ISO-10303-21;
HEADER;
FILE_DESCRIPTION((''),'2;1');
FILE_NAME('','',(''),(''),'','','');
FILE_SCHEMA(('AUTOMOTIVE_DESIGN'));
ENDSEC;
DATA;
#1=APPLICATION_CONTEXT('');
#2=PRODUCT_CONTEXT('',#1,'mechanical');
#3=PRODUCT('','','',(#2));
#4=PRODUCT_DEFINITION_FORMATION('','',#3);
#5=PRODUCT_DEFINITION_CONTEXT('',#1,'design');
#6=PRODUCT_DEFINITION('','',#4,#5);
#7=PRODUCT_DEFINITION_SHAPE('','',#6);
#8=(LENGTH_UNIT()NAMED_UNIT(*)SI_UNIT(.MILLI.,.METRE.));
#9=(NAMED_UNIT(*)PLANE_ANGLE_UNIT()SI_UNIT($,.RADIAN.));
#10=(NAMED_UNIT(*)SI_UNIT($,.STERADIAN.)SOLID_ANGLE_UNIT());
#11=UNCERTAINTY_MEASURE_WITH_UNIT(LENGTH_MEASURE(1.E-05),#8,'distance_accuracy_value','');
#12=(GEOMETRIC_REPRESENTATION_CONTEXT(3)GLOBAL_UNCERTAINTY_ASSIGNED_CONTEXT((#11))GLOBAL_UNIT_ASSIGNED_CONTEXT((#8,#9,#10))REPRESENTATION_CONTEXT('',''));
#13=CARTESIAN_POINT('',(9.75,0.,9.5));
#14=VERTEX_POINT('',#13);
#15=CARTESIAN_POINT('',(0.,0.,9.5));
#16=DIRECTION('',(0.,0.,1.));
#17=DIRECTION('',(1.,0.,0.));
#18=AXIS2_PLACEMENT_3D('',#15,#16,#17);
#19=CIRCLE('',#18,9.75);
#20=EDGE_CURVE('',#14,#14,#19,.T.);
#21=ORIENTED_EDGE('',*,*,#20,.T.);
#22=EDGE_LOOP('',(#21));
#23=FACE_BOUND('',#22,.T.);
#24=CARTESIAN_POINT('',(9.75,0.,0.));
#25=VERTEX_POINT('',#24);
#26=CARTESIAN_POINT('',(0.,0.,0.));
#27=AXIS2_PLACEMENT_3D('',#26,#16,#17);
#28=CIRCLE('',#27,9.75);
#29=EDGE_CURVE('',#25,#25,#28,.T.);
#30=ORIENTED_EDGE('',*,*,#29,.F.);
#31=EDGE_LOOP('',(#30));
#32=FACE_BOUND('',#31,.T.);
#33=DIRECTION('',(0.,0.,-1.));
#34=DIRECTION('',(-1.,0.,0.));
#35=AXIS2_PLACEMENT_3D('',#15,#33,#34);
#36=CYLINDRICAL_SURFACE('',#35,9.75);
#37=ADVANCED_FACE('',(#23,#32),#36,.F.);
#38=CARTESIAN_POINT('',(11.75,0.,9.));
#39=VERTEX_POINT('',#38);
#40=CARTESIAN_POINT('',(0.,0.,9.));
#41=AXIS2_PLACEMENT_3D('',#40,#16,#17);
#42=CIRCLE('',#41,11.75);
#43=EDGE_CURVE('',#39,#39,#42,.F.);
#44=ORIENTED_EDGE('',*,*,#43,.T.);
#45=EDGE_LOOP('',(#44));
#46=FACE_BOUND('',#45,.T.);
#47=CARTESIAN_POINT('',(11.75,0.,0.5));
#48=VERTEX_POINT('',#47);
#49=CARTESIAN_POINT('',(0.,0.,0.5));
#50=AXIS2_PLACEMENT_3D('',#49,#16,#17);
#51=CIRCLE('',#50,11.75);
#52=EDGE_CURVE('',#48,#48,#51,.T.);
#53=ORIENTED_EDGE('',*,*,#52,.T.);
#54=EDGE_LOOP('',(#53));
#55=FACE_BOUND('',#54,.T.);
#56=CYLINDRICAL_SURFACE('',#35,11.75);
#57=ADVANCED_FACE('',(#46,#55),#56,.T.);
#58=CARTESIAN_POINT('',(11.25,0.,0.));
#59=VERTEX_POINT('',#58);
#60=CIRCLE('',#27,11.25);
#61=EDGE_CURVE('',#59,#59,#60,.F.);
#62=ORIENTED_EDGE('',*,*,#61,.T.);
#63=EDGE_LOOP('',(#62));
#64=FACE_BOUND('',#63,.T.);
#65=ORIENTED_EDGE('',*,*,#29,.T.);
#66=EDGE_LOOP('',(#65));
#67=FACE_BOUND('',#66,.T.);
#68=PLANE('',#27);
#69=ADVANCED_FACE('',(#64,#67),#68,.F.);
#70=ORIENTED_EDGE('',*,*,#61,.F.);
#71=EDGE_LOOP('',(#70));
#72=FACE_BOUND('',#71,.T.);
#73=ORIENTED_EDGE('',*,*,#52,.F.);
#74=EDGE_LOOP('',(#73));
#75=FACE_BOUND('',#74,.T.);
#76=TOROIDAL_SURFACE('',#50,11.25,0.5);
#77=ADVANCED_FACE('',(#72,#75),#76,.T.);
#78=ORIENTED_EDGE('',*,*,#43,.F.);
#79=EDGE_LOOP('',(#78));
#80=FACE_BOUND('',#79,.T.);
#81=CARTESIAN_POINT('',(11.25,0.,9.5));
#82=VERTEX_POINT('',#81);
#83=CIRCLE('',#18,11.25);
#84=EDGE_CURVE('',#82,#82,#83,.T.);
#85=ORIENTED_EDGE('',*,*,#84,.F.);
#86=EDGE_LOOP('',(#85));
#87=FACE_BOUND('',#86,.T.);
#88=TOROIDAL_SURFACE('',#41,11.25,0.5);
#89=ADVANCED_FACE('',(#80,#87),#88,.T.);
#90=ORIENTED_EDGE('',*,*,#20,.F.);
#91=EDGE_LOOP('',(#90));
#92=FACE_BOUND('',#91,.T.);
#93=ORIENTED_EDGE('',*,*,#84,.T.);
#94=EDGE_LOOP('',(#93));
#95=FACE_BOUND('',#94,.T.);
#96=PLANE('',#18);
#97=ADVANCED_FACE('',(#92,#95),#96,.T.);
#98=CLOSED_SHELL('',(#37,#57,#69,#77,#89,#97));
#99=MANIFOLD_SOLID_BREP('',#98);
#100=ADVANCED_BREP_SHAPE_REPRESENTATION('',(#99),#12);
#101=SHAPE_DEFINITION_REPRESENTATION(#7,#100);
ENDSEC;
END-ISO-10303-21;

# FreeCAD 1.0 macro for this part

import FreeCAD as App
import Part
import Sketcher
from FreeCAD import Vector


def edges_at(feature, points):
    """Names of the edges that pass closest to the given points."""
    edges = feature.Shape.Edges
    near = lambda p: min(range(len(edges)), key=lambda i: edges[i].distToShape(Part.Vertex(*p))[0])
    return sorted({f"Edge{near(p) + 1}" for p in points})

doc = App.newDocument("Part")
body = doc.addObject("PartDesign::Body", "Body")

sketch1 = body.newObject("Sketcher::SketchObject", "Sketch")
sketch1.AttachmentSupport = (doc.getObject("XY_Plane"), [""])
sketch1.MapMode = "FlatFace"
sketch1.addGeometry([
    Part.Circle(Vector(0, 0, 0), Vector(0, 0, 1), 12),
    Part.Circle(Vector(0, 0, 0), Vector(0, 0, 1), 10),
], False)
sketch1.addConstraint([
    Sketcher.Constraint("Coincident", 0, 3, -1, 1),
    Sketcher.Constraint("Coincident", 1, 3, -1, 1),
    Sketcher.Constraint("Diameter", 0, 23.5),
    Sketcher.Constraint("Diameter", 1, 19.5),
])
pad1 = body.newObject("PartDesign::Pad", "Pad")
pad1.Profile = sketch1
pad1.Length = 9.5
doc.recompute()

fillet = body.newObject("PartDesign::Fillet", "Fillet")
fillet.Base = (pad1, edges_at(pad1, [(-11.75, 0, 9.5)]))
fillet.Radius = 0.5
doc.recompute()

fillet2 = body.newObject("PartDesign::Fillet", "Fillet001")
fillet2.Base = (fillet, edges_at(fillet, [(-11.75, 0, 0)]))
fillet2.Radius = 0.5

doc.recompute()
